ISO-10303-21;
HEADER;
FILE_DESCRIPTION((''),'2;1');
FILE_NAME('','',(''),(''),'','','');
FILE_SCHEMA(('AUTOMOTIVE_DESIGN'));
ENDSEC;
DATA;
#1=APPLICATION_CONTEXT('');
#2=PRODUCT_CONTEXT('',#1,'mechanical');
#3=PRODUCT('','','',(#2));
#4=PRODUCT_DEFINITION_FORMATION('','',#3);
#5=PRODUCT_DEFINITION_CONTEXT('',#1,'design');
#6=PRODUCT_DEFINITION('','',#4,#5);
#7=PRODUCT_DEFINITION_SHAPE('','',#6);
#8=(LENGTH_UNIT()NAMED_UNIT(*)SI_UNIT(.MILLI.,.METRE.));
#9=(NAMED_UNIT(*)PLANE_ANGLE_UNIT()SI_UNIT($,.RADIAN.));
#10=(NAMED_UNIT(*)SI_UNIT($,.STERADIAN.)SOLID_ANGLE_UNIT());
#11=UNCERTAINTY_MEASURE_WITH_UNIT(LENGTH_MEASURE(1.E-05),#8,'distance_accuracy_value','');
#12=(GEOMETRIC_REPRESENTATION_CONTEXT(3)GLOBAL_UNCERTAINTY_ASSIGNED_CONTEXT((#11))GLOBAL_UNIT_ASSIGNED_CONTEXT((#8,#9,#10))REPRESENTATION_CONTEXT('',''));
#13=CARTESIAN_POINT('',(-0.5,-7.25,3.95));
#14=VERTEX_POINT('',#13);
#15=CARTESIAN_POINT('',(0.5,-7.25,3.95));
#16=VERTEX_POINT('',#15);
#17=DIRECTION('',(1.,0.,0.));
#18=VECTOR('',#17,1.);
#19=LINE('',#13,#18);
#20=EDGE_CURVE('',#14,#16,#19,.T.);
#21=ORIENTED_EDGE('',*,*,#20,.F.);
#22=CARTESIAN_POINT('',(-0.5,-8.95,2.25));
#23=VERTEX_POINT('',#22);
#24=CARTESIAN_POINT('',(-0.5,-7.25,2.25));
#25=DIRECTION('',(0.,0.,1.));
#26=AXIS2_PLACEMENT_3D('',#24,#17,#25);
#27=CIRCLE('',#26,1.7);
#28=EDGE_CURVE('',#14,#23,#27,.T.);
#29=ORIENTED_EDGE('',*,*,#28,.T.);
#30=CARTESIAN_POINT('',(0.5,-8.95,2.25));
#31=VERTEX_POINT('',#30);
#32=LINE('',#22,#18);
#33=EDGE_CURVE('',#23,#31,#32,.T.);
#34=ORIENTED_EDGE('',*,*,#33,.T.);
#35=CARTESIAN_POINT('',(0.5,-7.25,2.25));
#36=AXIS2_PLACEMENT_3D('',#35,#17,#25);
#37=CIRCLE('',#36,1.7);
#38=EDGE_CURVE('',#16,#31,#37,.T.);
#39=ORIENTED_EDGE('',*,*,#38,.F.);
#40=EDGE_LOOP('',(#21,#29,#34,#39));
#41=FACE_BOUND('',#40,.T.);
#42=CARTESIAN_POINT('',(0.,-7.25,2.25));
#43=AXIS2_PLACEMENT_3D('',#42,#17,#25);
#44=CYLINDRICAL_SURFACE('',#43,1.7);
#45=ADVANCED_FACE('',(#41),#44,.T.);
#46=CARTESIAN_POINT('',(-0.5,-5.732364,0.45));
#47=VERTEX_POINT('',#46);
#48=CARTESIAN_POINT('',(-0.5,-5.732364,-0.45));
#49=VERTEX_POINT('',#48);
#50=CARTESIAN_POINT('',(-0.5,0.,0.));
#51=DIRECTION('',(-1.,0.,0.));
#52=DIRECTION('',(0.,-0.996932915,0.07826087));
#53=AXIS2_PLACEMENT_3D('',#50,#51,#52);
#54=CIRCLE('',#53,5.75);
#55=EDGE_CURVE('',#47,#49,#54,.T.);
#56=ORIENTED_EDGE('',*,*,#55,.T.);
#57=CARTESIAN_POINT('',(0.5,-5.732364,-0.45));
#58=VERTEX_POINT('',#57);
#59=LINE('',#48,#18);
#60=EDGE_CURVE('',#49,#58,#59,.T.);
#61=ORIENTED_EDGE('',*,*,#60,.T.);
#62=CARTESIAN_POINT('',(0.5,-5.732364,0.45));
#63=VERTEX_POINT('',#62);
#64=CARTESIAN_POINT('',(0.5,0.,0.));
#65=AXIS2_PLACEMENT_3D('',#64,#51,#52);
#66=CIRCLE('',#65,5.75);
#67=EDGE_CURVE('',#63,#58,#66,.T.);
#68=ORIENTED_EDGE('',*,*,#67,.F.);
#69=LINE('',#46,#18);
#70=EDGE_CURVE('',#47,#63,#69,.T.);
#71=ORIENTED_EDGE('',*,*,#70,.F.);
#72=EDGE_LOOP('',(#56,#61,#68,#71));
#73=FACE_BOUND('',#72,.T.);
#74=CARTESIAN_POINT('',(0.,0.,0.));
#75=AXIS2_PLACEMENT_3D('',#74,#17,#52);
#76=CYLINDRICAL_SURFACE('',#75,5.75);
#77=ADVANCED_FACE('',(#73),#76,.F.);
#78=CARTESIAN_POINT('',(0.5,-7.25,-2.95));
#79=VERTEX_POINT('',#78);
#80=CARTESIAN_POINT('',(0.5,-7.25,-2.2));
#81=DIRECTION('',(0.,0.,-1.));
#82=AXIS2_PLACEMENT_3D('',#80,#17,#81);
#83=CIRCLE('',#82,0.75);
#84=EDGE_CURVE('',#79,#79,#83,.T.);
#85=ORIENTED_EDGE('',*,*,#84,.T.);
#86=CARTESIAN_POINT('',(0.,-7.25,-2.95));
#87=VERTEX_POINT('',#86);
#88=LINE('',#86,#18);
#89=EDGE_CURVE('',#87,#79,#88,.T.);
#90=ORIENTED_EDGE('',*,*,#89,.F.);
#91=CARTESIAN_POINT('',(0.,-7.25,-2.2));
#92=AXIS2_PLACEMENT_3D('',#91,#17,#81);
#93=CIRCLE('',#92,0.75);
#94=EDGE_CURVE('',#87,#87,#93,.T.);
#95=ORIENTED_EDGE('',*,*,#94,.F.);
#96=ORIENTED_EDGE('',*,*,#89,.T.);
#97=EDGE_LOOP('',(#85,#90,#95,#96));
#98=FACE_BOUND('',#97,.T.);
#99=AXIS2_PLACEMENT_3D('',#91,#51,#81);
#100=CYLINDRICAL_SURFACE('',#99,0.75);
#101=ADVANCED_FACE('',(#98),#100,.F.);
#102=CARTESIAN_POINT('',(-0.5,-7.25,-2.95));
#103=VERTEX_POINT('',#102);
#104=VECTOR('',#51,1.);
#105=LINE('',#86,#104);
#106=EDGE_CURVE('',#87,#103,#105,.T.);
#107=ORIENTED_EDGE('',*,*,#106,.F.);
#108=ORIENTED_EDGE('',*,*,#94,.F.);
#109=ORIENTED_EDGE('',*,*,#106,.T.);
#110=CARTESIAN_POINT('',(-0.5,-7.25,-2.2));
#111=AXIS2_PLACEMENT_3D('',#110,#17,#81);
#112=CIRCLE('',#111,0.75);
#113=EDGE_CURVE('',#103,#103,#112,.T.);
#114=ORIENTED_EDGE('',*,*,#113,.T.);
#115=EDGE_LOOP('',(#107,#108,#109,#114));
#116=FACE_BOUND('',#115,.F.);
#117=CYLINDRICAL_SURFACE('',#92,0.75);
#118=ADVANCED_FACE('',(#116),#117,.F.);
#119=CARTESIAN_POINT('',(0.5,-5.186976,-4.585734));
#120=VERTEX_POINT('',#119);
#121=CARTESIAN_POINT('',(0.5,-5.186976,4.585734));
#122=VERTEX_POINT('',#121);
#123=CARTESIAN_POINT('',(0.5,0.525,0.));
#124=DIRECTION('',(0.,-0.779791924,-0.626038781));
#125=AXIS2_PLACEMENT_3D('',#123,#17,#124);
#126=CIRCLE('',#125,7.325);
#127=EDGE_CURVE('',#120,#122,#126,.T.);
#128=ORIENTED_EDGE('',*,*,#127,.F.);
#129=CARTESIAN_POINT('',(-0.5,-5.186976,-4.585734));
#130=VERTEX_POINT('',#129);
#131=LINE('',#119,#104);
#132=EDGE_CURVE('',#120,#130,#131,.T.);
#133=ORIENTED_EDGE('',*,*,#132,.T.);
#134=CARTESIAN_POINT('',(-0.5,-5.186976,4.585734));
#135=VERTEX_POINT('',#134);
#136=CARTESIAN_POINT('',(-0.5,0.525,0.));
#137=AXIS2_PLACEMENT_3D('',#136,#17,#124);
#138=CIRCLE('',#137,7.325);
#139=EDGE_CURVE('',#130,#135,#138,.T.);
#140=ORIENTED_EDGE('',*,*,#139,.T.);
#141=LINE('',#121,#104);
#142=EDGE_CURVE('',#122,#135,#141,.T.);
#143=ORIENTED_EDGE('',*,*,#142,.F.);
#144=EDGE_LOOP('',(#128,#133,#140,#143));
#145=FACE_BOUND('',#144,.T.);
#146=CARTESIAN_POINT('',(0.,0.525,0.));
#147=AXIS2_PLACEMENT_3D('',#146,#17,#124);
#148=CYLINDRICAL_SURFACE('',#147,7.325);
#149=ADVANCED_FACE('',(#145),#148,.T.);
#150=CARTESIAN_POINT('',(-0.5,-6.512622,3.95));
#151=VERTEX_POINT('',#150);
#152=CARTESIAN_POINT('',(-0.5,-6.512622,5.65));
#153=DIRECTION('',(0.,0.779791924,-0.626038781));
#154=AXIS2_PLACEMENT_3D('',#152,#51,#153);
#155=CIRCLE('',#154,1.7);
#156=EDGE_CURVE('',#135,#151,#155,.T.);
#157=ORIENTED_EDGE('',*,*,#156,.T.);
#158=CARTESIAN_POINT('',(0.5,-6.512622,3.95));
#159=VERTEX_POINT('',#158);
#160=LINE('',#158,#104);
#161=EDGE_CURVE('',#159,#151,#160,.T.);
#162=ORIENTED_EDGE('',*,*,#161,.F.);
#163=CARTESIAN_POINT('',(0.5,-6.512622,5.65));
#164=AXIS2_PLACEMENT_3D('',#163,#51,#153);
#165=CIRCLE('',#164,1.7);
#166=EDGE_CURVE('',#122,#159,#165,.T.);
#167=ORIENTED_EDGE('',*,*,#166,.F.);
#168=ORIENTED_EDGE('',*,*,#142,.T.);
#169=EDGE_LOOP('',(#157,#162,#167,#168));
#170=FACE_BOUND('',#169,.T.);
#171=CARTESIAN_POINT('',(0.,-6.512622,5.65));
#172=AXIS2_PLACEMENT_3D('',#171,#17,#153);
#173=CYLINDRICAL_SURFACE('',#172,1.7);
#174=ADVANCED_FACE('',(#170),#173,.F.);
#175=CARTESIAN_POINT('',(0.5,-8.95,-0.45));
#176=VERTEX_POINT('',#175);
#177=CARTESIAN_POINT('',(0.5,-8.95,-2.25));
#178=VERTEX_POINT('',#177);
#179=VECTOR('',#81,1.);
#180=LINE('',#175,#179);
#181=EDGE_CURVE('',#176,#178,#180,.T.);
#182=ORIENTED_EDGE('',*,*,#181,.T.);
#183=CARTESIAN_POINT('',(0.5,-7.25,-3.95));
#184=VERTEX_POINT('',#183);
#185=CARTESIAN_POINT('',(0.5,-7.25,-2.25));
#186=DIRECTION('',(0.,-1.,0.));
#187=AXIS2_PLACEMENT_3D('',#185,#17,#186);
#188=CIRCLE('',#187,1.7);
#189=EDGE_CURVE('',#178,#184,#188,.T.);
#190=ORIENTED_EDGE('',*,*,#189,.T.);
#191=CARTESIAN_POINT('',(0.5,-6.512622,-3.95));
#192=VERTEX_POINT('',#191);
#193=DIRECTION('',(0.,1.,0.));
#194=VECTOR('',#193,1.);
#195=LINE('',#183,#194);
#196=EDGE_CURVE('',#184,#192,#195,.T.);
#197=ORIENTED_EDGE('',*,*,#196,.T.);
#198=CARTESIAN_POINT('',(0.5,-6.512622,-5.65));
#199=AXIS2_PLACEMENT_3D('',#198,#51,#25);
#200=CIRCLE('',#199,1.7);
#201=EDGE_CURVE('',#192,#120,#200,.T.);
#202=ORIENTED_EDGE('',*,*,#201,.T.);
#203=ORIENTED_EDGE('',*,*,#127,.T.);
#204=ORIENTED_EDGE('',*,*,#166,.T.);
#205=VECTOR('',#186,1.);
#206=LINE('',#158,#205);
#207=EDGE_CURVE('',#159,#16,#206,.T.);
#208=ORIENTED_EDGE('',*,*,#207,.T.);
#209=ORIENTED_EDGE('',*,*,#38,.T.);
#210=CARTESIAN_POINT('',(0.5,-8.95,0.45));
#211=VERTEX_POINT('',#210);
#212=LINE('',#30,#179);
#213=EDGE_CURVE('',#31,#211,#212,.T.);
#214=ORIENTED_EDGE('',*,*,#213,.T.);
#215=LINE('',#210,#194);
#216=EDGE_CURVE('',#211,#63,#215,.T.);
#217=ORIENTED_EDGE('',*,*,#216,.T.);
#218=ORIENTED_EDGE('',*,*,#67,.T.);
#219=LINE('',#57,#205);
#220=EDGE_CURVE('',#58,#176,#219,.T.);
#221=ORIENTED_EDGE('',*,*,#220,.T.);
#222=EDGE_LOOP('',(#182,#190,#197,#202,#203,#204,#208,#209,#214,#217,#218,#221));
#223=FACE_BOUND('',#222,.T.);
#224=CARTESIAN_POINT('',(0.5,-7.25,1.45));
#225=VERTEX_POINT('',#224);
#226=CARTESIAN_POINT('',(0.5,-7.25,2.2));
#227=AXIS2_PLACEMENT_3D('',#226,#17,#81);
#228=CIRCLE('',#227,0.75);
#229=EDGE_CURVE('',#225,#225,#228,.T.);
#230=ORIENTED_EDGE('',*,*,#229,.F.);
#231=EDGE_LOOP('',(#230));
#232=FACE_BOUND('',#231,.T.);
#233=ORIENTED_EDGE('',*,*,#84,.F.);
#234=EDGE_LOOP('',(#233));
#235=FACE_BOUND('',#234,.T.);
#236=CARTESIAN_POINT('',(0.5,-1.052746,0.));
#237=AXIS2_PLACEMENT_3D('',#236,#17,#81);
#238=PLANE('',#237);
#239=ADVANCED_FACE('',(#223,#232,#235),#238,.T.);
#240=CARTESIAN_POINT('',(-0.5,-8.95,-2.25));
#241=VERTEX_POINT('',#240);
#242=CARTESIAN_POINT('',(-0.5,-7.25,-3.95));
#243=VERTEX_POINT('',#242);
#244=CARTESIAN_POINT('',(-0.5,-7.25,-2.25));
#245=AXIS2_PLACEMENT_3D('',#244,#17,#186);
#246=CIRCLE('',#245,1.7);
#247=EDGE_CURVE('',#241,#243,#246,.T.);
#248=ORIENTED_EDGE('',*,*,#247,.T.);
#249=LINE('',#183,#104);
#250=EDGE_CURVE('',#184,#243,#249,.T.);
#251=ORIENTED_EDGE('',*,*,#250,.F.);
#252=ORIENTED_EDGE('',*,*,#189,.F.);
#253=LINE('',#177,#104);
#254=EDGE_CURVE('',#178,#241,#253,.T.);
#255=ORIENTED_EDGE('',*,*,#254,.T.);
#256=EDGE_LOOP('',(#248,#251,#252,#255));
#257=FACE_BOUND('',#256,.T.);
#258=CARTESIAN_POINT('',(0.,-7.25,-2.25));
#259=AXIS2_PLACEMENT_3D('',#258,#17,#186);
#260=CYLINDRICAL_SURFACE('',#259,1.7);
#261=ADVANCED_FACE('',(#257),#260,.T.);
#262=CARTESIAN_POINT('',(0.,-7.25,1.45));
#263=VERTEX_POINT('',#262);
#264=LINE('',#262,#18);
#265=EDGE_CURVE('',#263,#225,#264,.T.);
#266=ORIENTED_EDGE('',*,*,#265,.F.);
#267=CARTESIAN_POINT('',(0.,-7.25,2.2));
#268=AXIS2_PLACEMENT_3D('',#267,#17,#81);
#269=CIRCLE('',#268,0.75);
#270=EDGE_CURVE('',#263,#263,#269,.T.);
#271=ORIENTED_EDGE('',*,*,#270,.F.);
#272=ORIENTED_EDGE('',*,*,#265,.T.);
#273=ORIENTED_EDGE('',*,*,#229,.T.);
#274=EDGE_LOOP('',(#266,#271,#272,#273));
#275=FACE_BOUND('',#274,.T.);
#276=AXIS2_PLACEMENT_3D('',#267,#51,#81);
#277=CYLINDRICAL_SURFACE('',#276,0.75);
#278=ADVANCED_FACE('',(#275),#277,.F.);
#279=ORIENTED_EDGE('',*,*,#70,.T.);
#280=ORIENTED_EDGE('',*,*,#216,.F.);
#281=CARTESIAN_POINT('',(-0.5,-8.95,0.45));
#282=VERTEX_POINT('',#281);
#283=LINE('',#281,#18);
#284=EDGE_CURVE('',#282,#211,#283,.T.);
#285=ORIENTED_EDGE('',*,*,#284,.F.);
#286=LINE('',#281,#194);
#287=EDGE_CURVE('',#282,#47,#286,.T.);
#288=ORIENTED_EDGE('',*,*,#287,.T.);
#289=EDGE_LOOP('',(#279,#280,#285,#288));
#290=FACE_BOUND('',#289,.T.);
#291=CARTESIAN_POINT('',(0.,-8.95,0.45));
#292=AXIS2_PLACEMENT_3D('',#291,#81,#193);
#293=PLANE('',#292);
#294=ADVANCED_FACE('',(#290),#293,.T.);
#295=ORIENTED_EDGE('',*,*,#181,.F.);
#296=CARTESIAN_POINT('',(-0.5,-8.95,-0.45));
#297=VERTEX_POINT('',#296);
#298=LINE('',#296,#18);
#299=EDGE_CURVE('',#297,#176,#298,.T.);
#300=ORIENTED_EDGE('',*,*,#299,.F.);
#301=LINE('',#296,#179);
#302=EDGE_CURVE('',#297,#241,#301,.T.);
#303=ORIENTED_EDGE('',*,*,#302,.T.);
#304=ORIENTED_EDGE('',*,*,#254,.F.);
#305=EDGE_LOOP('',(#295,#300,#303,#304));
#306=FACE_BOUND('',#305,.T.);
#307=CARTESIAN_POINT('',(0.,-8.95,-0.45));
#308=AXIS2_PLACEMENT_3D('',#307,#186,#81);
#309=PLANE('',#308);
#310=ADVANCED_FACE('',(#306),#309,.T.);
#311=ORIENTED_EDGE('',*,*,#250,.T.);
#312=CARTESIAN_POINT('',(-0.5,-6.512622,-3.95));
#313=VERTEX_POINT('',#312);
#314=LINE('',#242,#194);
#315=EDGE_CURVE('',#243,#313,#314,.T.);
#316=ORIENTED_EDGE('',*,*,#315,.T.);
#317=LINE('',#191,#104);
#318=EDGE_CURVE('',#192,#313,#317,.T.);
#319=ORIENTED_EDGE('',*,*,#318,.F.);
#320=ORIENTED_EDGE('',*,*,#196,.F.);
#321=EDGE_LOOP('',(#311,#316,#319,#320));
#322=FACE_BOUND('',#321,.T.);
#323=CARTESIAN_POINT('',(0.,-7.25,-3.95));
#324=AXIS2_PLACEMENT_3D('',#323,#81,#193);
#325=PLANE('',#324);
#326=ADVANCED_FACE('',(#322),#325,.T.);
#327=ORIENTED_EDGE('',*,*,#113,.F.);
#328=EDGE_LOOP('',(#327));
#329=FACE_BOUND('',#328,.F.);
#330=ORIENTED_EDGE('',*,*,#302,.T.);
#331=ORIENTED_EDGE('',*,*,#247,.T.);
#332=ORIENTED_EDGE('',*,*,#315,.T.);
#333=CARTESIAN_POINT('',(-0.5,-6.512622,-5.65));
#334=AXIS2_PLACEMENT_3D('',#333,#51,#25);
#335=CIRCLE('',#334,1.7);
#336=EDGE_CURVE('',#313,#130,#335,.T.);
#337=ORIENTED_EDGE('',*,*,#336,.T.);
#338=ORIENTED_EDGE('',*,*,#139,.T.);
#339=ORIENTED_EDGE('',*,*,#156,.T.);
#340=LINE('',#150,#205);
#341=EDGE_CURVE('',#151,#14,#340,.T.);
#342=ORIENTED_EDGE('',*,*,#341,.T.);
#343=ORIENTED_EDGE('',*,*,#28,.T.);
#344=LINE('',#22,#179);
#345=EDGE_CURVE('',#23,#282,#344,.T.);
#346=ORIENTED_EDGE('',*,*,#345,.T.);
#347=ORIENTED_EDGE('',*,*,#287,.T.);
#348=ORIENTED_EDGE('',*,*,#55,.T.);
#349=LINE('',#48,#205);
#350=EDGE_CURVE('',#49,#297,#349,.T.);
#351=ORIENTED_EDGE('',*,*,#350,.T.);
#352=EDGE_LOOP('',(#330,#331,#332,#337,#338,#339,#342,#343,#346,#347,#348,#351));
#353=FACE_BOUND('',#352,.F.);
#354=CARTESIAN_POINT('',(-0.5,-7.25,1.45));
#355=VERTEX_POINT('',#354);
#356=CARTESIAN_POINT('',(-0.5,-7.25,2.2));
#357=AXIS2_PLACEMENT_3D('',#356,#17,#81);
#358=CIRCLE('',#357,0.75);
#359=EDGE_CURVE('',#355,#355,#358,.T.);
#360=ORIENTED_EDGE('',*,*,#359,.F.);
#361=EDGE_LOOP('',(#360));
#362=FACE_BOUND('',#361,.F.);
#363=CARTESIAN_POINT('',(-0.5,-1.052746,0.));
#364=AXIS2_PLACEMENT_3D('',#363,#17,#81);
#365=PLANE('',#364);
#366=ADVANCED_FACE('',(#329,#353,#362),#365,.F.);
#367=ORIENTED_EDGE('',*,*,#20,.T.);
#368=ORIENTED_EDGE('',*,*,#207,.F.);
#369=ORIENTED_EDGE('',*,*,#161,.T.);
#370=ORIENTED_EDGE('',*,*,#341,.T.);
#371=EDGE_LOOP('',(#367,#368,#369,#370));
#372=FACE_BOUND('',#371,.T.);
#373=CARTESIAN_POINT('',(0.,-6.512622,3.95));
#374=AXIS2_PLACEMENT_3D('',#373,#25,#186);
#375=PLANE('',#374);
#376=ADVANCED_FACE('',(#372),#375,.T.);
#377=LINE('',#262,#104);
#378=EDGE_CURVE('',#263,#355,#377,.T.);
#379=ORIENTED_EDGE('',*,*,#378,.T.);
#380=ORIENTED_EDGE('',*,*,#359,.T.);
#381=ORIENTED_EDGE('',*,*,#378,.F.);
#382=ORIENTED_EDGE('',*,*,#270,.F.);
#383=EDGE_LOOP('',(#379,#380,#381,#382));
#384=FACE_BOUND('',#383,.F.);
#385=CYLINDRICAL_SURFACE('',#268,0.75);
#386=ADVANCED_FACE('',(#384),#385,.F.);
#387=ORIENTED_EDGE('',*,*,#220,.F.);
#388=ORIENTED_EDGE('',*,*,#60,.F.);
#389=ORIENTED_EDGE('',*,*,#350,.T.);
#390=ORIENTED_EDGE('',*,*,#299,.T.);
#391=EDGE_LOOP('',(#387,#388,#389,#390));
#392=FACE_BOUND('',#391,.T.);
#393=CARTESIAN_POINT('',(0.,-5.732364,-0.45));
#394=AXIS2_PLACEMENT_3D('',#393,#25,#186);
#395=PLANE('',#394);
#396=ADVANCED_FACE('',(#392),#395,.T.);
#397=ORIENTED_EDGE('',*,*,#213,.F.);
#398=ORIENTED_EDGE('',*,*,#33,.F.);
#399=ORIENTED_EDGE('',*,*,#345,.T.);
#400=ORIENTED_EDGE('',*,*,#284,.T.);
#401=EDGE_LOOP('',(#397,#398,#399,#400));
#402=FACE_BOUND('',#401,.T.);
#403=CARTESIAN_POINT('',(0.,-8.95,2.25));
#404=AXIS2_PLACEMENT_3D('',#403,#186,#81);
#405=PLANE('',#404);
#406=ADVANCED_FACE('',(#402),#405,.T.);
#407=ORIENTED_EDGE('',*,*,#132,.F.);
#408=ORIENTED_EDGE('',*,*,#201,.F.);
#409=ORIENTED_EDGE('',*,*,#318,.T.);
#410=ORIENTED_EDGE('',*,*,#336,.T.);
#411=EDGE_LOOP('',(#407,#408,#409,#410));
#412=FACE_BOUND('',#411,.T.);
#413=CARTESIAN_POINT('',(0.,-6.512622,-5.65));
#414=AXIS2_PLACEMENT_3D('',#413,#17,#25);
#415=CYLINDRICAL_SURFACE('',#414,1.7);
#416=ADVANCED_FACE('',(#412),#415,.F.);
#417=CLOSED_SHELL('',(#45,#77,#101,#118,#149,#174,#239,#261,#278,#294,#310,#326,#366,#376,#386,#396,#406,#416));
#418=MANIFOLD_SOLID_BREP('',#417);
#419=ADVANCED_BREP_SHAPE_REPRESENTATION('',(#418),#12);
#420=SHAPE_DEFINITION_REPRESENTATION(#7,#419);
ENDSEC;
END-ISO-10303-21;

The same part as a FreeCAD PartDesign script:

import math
import FreeCAD as App
import Part
import Sketcher
from FreeCAD import Vector
Q = App.Units.Quantity

doc = App.newDocument("Part")
body = doc.addObject("PartDesign::Body", "Body")

sketch1 = body.newObject("Sketcher::SketchObject", "Sketch")
sketch1.AttachmentSupport = (doc.getObject("YZ_Plane"), [""])
sketch1.MapMode = "FlatFace"
sketch1.addGeometry([
    Part.LineSegment(Vector(-6.5, 4, 0), Vector(-7.2, 4, 0)),
    Part.ArcOfCircle(Part.Circle(Vector(-7.2, 2.2, 0), Vector(0, 0, 1), 1.7), math.radians(90), math.radians(180)),
    Part.LineSegment(Vector(-8.9, 2.2, 0), Vector(-8.9, 0.5, 0)),
    Part.LineSegment(Vector(-8.9, 0.5, 0), Vector(-5.7, 0.5, 0)),
    Part.ArcOfCircle(Part.Circle(Vector(0, 0, 0), Vector(0, 0, 1), 5.8), math.radians(-176), math.radians(176)),
    Part.LineSegment(Vector(-5.7, -0.5, 0), Vector(-8.9, -0.5, 0)),
    Part.LineSegment(Vector(-8.9, -0.5, 0), Vector(-8.9, -2.2, 0)),
    Part.ArcOfCircle(Part.Circle(Vector(-7.2, -2.2, 0), Vector(0, 0, 1), 1.7), math.radians(180), math.radians(270)),
    Part.LineSegment(Vector(-7.2, -4, 0), Vector(-6.5, -4, 0)),
    Part.ArcOfCircle(Part.Circle(Vector(-6.5, -5.7, 0), Vector(0, 0, 1), 1.7), math.radians(39), math.radians(90)),
    Part.ArcOfCircle(Part.Circle(Vector(0.5, 0, 0), Vector(0, 0, 1), 7.3), math.radians(-141), math.radians(141)),
    Part.ArcOfCircle(Part.Circle(Vector(-6.5, 5.7, 0), Vector(0, 0, 1), 1.7), math.radians(-90), math.radians(-39)),
    Part.Circle(Vector(-7.2, 2.2, 0), Vector(0, 0, 1), 0.8),
    Part.Circle(Vector(-7.2, -2.2, 0), Vector(0, 0, 1), 0.8),
], False)
sketch1.addConstraint([
    Sketcher.Constraint("Tangent", 0, 2, 1, 1),
    Sketcher.Constraint("Tangent", 1, 2, 2, 1),
    Sketcher.Constraint("Coincident", 2, 2, 3, 1),
    Sketcher.Constraint("Coincident", 3, 2, 4, 2),
    Sketcher.Constraint("Coincident", 4, 1, 5, 1),
    Sketcher.Constraint("Coincident", 5, 2, 6, 1),
    Sketcher.Constraint("Tangent", 6, 2, 7, 1),
    Sketcher.Constraint("Tangent", 7, 2, 8, 1),
    Sketcher.Constraint("Tangent", 8, 2, 9, 2),
    Sketcher.Constraint("Tangent", 9, 1, 10, 1),
    Sketcher.Constraint("Tangent", 10, 2, 11, 2),
    Sketcher.Constraint("Tangent", 11, 1, 0, 1),
    Sketcher.Constraint("Horizontal", 0),
    Sketcher.Constraint("Vertical", 2),
    Sketcher.Constraint("Horizontal", 3),
    Sketcher.Constraint("Horizontal", 5),
    Sketcher.Constraint("Vertical", 6),
    Sketcher.Constraint("Horizontal", 8),
    Sketcher.Constraint("Coincident", 4, 3, -1, 1),
    Sketcher.Constraint("Equal", 1, 7),
    Sketcher.Constraint("Equal", 7, 9),
    Sketcher.Constraint("Equal", 9, 11),
    Sketcher.Constraint("Equal", 12, 13),
    Sketcher.Constraint("Symmetric", 1, 3, 7, 3, -1),
    Sketcher.Constraint("Symmetric", 12, 3, 13, 3, -1),
    Sketcher.Constraint("PointOnObject", 10, 3, -1),
    Sketcher.Constraint("Vertical", 7, 3, 12, 3),
    Sketcher.Constraint("Vertical", 3, 2, 4, 1),
    Sketcher.Constraint("Diameter", 12, Q("1.5 mm")),
    Sketcher.Constraint("Radius", 1, Q("1.7 mm")),
    Sketcher.Constraint("Radius", 4, Q("5.75 mm")),
    Sketcher.Constraint("DistanceY", 2, 2, 2, 1, Q("1.8 mm")),
    Sketcher.Constraint("Radius", 10, Q("7.325 mm")),
    Sketcher.Constraint("DistanceY", -1, 1, 12, 3, Q("2.2 mm")),
    Sketcher.Constraint("DistanceY", 7, 3, 1, 3, Q("4.5 mm")),
    Sketcher.Constraint("DistanceX", 1, 3, -1, 1, Q("7.25 mm")),
    Sketcher.Constraint("DistanceX", -1, 1, 10, 3, Q("0.525 mm")),
])
pad1 = body.newObject("PartDesign::Pad", "Pad")
pad1.Profile = sketch1
pad1.Type = "TwoLengths"
pad1.Length = 0.5
pad1.Length2 = 0.5

doc.recompute()
